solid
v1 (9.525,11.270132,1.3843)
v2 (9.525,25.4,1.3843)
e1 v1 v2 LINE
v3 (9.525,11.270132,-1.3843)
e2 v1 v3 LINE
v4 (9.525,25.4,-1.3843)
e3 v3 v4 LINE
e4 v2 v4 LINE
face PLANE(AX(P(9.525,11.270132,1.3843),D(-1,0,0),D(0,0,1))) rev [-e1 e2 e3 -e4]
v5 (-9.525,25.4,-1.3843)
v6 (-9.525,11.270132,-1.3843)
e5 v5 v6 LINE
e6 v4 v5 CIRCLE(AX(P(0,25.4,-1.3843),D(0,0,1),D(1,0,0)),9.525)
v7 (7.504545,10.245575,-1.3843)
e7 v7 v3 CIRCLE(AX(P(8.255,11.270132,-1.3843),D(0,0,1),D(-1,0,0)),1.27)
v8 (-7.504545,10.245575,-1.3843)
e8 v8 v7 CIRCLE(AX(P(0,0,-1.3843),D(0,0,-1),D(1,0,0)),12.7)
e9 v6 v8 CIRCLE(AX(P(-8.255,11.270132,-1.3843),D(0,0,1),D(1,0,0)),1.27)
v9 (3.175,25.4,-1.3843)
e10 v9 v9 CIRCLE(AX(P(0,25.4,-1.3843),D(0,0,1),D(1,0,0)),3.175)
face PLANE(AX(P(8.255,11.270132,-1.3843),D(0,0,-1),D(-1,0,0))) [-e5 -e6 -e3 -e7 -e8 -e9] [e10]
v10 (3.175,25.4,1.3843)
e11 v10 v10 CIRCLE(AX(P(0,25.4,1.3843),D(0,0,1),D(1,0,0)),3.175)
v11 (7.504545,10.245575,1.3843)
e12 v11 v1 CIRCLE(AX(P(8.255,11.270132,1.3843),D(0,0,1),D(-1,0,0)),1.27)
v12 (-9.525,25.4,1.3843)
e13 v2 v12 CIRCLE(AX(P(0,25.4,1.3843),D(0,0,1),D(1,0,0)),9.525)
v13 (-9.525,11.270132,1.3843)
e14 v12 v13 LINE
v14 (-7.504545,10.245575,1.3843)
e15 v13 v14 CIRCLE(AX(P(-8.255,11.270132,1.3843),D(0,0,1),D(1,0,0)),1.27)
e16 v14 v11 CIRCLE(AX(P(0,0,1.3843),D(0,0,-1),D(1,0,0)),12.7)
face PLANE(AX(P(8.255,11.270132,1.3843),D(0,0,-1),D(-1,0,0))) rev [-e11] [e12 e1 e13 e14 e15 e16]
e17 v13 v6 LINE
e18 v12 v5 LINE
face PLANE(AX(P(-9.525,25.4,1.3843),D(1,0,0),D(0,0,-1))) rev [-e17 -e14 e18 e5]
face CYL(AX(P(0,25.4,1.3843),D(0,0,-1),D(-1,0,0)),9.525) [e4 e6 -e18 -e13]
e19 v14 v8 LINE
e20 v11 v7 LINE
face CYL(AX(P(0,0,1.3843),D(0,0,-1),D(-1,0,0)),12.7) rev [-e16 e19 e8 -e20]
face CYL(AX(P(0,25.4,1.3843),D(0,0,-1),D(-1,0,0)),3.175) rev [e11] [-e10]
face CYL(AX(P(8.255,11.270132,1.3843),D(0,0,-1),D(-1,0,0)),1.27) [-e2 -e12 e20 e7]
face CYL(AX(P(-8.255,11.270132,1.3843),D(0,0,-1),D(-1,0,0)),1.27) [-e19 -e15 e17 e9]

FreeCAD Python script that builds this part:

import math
import FreeCAD as App
import Part
import Sketcher
Q = App.Units.Quantity

doc = App.newDocument("Part")
body = doc.addObject("PartDesign::Body", "Body")

sketch1 = body.newObject("Sketcher::SketchObject", "Sketch")
sketch1.AttachmentSupport = (doc.getObject("XY_Plane"), [""])
sketch1.MapMode = "FlatFace"
sketch1.addGeometry(Part.LineSegment(App.Vector(9.525, 11.270132, 0), App.Vector(9.525, 25.4, 0)), False)
sketch1.addGeometry(Part.ArcOfCircle(Part.Circle(App.Vector(0, 25.4, 0), App.Vector(0, 0, 1), 9.525), math.radians(0), math.radians(180)), False)
sketch1.addGeometry(Part.LineSegment(App.Vector(-9.525, 25.4, 0), App.Vector(-9.525, 11.270132, 0)), False)
sketch1.addGeometry(Part.ArcOfCircle(Part.Circle(App.Vector(-8.255, 11.270132, 0), App.Vector(0, 0, 1), 1.27), math.radians(180), math.radians(306.221547)), False)
sketch1.addGeometry(Part.ArcOfCircle(Part.Circle(App.Vector(0, 0, 0), App.Vector(0, 0, 1), 12.7), math.radians(53.778453), math.radians(126.221547)), False)
sketch1.addGeometry(Part.ArcOfCircle(Part.Circle(App.Vector(8.255, 11.270132, 0), App.Vector(0, 0, 1), 1.27), math.radians(-126.221547), math.radians(0)), False)
sketch1.addGeometry(Part.Circle(App.Vector(0, 25.4, 0), App.Vector(0, 0, 1), 3.175), False)
sketch1.addConstraint(Sketcher.Constraint("Tangent", 0, 2, 1, 1))
sketch1.addConstraint(Sketcher.Constraint("Tangent", 1, 2, 2, 1))
sketch1.addConstraint(Sketcher.Constraint("Tangent", 2, 2, 3, 1))
sketch1.addConstraint(Sketcher.Constraint("Tangent", 3, 2, 4, 2))
sketch1.addConstraint(Sketcher.Constraint("Tangent", 4, 1, 5, 1))
sketch1.addConstraint(Sketcher.Constraint("Tangent", 5, 2, 0, 1))
sketch1.addConstraint(Sketcher.Constraint("Vertical", 0))
sketch1.addConstraint(Sketcher.Constraint("Vertical", 2))
sketch1.addConstraint(Sketcher.Constraint("Coincident", 4, 3, -1, 1))
sketch1.addConstraint(Sketcher.Constraint("Coincident", 6, 3, 1, 3))
sketch1.addConstraint(Sketcher.Constraint("Equal", 3, 5))
sketch1.addConstraint(Sketcher.Constraint("PointOnObject", 1, 3, -2))
sketch1.addConstraint(Sketcher.Constraint("Radius", 4, Q("0.5 in")))
sketch1.addConstraint(Sketcher.Constraint("Diameter", 6, Q("0.25 in")))
sketch1.addConstraint(Sketcher.Constraint("Radius", 3, Q("0.05 in")))
sketch1.addConstraint(Sketcher.Constraint("DistanceY", -1, 1, 1, 3, Q("1 in")))
sketch1.addConstraint(Sketcher.Constraint("Radius", 1, Q("0.375 in")))
pad1 = body.newObject("PartDesign::Pad", "Pad")
pad1.Profile = sketch1
pad1.Length = Q("0.109 in")
pad1.Midplane = True

doc.recompute()
